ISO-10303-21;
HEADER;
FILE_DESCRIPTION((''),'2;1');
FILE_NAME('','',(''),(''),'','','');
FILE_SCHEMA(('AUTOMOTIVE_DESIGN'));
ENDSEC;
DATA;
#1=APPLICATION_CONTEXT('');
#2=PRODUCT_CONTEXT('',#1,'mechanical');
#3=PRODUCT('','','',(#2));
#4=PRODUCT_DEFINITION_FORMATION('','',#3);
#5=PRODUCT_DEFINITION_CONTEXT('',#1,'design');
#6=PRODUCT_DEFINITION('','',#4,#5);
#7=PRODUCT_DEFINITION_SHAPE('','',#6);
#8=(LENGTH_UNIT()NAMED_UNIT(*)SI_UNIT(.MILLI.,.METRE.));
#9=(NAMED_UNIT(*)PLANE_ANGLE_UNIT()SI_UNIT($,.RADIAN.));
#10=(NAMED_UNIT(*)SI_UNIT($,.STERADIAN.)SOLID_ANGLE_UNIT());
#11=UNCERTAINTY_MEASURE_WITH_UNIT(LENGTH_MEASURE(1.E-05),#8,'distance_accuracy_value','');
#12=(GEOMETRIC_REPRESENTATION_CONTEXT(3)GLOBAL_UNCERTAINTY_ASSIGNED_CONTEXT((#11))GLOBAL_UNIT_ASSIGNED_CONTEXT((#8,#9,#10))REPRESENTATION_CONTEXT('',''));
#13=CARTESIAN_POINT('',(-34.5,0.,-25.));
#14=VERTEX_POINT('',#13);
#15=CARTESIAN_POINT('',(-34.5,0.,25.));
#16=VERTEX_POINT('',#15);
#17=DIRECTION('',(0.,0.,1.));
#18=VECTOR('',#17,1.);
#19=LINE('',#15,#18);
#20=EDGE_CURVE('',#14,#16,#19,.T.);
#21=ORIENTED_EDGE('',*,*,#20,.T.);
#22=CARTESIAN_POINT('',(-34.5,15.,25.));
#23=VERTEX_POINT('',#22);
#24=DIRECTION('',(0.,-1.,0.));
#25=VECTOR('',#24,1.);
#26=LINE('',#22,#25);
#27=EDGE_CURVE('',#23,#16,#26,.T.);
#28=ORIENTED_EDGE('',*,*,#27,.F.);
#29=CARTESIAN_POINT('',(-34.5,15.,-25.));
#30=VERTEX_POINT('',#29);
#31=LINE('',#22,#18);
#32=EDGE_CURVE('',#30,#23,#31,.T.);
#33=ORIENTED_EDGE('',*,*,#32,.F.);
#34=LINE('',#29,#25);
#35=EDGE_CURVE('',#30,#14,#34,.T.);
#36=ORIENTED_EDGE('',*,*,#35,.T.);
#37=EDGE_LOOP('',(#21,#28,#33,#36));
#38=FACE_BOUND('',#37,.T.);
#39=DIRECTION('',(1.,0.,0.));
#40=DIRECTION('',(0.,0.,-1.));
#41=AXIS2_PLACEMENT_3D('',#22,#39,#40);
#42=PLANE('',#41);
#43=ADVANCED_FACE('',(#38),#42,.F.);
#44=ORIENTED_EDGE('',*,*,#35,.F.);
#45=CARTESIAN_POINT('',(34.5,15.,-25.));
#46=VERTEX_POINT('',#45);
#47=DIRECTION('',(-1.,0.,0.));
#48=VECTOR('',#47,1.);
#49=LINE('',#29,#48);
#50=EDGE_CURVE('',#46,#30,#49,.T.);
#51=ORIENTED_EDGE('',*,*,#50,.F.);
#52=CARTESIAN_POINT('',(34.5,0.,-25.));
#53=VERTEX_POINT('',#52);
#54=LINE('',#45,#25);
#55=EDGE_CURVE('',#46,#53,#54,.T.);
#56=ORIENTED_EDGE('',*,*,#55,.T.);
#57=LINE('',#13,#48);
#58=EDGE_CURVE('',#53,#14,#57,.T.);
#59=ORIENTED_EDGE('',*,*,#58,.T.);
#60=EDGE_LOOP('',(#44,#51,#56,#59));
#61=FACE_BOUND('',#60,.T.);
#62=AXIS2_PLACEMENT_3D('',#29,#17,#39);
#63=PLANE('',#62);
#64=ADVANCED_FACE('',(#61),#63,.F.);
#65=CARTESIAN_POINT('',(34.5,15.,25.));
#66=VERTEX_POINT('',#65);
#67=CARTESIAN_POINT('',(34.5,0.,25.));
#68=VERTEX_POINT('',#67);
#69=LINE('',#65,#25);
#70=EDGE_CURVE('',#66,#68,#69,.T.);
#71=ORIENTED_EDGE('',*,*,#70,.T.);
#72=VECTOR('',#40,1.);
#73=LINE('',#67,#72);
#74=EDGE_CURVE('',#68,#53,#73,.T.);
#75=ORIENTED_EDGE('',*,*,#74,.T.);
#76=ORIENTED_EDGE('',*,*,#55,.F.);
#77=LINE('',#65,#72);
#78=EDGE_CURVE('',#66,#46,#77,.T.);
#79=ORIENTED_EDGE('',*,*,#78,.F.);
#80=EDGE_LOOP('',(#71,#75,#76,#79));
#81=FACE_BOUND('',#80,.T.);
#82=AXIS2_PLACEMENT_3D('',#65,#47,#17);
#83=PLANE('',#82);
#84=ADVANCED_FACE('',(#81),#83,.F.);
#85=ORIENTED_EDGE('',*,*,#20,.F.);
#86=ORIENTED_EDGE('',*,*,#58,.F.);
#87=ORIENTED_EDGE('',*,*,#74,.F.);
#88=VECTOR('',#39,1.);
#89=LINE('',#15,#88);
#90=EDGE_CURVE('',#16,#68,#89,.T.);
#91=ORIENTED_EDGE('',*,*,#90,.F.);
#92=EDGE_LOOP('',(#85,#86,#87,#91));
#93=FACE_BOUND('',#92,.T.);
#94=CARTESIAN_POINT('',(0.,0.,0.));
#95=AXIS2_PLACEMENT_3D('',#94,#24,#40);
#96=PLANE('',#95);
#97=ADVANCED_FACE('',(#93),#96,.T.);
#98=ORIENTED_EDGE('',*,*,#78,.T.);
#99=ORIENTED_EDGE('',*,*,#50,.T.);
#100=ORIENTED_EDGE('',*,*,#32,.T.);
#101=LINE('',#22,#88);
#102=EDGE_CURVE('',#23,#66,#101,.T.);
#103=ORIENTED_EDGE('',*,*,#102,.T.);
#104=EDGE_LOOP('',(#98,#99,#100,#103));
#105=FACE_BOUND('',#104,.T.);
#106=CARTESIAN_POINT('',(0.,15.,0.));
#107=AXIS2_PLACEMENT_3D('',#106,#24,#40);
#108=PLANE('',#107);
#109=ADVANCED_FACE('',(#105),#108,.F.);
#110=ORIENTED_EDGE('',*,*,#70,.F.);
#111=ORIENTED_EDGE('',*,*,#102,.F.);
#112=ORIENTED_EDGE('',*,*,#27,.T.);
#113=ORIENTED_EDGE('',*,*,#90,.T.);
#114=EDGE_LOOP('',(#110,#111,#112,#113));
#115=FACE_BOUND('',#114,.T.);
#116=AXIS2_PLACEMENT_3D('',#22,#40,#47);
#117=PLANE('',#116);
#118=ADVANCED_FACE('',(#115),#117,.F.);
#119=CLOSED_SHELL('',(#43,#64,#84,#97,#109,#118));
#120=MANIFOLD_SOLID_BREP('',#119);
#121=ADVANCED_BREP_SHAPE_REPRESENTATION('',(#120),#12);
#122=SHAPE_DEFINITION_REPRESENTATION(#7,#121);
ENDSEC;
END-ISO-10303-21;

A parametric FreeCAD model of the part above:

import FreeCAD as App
import Part
import Sketcher

V = App.Vector

doc = App.newDocument("Part")
body = doc.addObject("PartDesign::Body", "Body")

# Sketch on XZ plane
sketch1 = body.newObject("Sketcher::SketchObject", "Sketch")
sketch1.AttachmentSupport = (doc.getObject("XZ_Plane"), [""])
sketch1.MapMode = "FlatFace"
sketch1.addGeometry(Part.LineSegment(V(-34.5, -25, 0), V(-34.5, 25, 0)), False)
sketch1.addGeometry(Part.LineSegment(V(-34.5, 25, 0), V(34.5, 25, 0)), False)
sketch1.addGeometry(Part.LineSegment(V(34.5, 25, 0), V(34.5, -25, 0)), False)
sketch1.addGeometry(Part.LineSegment(V(34.5, -25, 0), V(-34.5, -25, 0)), False)
sketch1.addConstraint(Sketcher.Constraint("Coincident", 0, 2, 1, 1))
sketch1.addConstraint(Sketcher.Constraint("Coincident", 1, 2, 2, 1))
sketch1.addConstraint(Sketcher.Constraint("Coincident", 2, 2, 3, 1))
sketch1.addConstraint(Sketcher.Constraint("Coincident", 3, 2, 0, 1))
sketch1.addConstraint(Sketcher.Constraint("Vertical", 0))
sketch1.addConstraint(Sketcher.Constraint("Horizontal", 1))
sketch1.addConstraint(Sketcher.Constraint("Vertical", 2))
sketch1.addConstraint(Sketcher.Constraint("Horizontal", 3))
sketch1.addConstraint(Sketcher.Constraint("Symmetric", 0, 2, 2, 2, -1, 1))
sketch1.addConstraint(Sketcher.Constraint("DistanceX", 1, 1, 1, 2, 69.0))
sketch1.addConstraint(Sketcher.Constraint("DistanceY", 0, 1, 0, 2, 50.0))
pad1 = body.newObject("PartDesign::Pad", "Pad")
pad1.Profile = sketch1
pad1.Length = 15
pad1.Reversed = True

doc.recompute()
